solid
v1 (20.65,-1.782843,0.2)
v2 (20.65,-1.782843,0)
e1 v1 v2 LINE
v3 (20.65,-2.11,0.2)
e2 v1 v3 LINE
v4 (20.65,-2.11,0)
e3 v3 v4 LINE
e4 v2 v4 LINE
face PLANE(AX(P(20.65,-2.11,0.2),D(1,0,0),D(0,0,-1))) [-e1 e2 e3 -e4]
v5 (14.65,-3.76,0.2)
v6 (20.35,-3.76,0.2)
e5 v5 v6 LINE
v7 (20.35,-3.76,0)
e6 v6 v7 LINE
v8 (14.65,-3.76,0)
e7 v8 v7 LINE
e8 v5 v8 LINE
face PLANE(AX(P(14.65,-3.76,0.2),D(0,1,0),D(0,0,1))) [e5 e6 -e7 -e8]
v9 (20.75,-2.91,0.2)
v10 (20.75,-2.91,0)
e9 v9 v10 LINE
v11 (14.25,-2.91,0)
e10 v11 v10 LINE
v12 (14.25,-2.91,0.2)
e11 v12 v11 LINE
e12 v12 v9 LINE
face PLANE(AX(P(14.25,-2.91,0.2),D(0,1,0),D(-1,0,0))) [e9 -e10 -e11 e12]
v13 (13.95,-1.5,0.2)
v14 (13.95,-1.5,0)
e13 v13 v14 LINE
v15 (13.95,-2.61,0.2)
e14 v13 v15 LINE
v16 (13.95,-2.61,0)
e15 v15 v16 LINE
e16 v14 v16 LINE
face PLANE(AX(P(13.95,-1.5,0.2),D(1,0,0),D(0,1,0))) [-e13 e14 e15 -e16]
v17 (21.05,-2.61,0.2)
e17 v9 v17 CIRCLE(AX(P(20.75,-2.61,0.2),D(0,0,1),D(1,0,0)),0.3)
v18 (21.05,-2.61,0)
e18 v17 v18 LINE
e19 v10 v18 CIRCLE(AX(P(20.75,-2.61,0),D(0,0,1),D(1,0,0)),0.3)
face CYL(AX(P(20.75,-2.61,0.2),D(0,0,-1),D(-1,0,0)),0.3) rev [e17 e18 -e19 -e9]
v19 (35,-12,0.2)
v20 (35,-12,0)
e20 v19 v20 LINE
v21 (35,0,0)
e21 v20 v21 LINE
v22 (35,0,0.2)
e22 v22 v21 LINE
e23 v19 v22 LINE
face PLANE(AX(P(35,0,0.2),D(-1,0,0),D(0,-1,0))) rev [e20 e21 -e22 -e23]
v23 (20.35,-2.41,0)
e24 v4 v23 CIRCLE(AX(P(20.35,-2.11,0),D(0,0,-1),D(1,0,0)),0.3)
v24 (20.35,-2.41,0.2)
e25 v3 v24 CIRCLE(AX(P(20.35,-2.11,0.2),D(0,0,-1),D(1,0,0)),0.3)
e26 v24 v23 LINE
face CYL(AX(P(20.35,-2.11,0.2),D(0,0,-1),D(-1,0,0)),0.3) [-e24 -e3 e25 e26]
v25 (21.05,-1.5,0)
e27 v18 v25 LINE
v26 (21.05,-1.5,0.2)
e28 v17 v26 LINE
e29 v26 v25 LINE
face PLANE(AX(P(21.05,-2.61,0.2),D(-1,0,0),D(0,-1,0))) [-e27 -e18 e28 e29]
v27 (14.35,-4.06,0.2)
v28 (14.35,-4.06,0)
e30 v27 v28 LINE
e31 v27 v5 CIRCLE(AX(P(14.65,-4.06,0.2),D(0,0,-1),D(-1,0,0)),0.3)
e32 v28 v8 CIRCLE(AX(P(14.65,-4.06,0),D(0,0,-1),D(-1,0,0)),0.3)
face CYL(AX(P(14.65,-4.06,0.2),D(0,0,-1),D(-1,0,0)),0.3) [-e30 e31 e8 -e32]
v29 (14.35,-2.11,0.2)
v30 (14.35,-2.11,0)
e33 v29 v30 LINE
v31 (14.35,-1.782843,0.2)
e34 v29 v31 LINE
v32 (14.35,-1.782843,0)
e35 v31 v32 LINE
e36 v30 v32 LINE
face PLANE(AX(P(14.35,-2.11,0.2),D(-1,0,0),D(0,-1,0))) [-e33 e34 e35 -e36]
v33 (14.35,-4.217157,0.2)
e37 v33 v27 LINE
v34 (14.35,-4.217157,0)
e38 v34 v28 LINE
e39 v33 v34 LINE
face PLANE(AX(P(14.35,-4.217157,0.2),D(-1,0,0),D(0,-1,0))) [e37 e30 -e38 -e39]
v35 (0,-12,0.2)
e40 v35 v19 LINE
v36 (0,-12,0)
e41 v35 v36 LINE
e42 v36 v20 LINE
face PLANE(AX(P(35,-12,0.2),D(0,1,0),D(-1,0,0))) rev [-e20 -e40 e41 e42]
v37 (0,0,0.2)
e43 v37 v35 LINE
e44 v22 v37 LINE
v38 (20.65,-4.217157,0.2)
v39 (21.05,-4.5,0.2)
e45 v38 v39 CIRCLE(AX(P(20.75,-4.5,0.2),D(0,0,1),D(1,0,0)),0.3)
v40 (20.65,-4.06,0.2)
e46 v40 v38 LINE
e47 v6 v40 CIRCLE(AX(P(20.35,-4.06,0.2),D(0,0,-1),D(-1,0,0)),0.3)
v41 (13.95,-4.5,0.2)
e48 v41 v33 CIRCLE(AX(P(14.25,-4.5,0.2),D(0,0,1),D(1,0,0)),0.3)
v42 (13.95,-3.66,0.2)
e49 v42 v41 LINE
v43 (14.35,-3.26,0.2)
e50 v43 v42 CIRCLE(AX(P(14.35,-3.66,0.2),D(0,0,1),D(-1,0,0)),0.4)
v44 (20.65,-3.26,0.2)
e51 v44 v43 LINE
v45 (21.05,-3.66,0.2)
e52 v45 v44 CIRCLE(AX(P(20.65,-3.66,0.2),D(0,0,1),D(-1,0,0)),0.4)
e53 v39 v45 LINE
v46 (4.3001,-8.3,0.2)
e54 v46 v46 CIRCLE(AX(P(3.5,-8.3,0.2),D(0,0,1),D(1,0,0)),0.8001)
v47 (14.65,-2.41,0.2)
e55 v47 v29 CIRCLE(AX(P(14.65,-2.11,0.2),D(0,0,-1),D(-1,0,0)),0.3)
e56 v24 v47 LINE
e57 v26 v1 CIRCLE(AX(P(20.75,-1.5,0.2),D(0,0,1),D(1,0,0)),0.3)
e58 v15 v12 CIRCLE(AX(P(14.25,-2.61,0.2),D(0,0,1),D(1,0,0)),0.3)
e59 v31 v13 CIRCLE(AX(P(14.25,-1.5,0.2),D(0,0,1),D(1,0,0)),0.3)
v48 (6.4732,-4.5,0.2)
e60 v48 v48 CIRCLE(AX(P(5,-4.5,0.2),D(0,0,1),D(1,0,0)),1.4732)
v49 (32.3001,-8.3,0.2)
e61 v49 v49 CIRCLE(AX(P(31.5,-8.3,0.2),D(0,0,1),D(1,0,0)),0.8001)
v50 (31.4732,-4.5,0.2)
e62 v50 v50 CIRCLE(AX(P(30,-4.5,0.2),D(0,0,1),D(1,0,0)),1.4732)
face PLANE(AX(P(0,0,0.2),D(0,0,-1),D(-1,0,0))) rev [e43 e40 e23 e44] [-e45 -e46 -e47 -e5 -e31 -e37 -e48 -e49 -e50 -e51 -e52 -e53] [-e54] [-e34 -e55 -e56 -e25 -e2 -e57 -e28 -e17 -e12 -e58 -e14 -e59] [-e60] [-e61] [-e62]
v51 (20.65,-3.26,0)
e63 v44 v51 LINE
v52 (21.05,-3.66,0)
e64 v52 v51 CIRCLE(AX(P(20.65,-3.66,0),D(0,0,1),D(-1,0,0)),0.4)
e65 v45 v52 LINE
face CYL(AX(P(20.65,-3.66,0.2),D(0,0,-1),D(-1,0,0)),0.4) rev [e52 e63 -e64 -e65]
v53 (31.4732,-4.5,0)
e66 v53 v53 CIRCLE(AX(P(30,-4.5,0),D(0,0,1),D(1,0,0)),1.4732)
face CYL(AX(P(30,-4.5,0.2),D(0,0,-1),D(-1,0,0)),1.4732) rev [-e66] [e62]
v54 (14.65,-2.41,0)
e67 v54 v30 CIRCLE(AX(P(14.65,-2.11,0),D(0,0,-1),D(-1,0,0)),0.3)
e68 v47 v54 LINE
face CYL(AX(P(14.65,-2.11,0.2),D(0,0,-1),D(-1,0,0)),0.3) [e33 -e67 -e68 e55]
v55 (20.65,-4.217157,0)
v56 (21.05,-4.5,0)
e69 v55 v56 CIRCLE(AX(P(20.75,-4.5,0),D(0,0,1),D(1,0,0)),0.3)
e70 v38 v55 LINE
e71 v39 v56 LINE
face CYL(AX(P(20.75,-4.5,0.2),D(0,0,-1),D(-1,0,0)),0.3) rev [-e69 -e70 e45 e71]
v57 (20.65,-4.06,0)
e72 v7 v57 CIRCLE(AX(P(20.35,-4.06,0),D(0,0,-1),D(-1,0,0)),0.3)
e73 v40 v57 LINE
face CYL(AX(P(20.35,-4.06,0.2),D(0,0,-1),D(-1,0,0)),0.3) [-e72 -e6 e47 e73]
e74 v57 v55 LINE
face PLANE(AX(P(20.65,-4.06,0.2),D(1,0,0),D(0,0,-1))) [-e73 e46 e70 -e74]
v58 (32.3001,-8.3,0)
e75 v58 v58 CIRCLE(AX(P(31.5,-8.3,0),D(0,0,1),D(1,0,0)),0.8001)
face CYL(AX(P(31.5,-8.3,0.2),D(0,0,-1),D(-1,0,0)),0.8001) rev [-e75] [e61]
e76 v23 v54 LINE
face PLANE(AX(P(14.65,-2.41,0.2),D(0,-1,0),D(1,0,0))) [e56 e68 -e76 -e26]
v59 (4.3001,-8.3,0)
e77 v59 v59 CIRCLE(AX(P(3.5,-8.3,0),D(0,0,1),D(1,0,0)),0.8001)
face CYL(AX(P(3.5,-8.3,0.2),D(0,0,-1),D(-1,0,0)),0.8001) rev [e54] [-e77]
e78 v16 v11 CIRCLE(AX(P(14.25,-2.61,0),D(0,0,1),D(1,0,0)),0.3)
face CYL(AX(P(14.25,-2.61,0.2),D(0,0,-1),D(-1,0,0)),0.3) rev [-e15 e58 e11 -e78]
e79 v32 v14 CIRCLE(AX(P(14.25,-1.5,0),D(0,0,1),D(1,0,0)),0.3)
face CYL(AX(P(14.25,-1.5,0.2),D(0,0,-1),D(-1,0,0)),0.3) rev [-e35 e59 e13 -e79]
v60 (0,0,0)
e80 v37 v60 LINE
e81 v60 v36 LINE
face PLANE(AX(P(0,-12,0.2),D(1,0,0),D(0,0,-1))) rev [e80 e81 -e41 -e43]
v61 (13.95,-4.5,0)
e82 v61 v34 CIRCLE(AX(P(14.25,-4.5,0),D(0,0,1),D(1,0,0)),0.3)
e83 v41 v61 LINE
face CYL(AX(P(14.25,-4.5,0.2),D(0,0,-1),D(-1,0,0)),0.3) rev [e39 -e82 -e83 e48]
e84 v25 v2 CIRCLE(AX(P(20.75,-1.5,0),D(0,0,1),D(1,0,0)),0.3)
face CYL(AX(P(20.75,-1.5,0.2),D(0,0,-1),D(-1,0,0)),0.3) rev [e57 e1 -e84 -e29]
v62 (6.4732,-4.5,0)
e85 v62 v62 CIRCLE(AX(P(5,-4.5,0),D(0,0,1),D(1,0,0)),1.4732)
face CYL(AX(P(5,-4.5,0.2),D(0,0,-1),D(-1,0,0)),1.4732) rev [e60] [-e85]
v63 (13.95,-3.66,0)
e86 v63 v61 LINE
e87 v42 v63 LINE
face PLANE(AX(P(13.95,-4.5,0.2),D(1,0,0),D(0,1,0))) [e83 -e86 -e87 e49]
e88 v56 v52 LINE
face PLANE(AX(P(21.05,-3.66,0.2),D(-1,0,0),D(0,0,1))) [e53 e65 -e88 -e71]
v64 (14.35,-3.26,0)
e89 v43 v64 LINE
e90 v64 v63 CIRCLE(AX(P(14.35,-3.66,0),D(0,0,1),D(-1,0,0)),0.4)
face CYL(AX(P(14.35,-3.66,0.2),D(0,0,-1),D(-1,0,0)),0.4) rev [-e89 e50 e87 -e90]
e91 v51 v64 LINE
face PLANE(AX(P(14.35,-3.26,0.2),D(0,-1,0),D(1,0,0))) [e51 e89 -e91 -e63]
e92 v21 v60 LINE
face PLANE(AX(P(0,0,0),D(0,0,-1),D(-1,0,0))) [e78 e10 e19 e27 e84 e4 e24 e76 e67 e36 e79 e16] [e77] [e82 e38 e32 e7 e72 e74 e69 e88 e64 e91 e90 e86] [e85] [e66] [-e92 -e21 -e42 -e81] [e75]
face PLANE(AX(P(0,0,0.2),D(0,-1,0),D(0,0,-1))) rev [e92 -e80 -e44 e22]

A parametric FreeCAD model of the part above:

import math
import FreeCAD as App
import Part
import Sketcher
from FreeCAD import Vector

doc = App.newDocument("Part")
body = doc.addObject("PartDesign::Body", "Body")

# Sketch on XY plane
sketch1 = body.newObject("Sketcher::SketchObject", "Sketch")
sketch1.AttachmentSupport = (doc.getObject("XY_Plane"), [""])
sketch1.MapMode = "FlatFace"
sketch1.addGeometry([
    Part.LineSegment(Vector(0, 0, 0), Vector(0, -12, 0)),  # 0
    Part.LineSegment(Vector(0, -12, 0), Vector(35, -12, 0)),  # 1
    Part.LineSegment(Vector(35, -12, 0), Vector(35, 0, 0)),  # 2
    Part.LineSegment(Vector(35, 0, 0), Vector(0, 0, 0)),  # 3
    Part.Circle(Vector(3.5, -8.3, 0), Vector(0, 0, 1), 0.8),  # 4
    Part.Circle(Vector(31.5, -8.3, 0), Vector(0, 0, 1), 0.8),  # 5
    Part.Circle(Vector(5, -4.5, 0), Vector(0, 0, 1), 1.47),  # 6
    Part.ArcOfCircle(Part.Circle(Vector(14.25, -4.5, 0), Vector(0, 0, 1), 0.3), math.radians(180), math.radians(431)),  # 7
    Part.LineSegment(Vector(13.95, -4.5, 0), Vector(13.95, -3.66, 0)),  # 8
    Part.ArcOfCircle(Part.Circle(Vector(14.35, -3.66, 0), Vector(0, 0, 1), 0.4), math.radians(90), math.radians(180)),  # 9
    Part.LineSegment(Vector(14.35, -3.26, 0), Vector(20.65, -3.26, 0)),  # 10
    Part.ArcOfCircle(Part.Circle(Vector(20.65, -3.66, 0), Vector(0, 0, 1), 0.4), math.radians(0), math.radians(90)),  # 11
    Part.LineSegment(Vector(21.05, -3.66, 0), Vector(21.05, -4.5, 0)),  # 12
    Part.ArcOfCircle(Part.Circle(Vector(20.75, -4.5, 0), Vector(0, 0, 1), 0.3), math.radians(109), math.radians(360)),  # 13
    Part.LineSegment(Vector(20.65, -4.22, 0), Vector(20.65, -4.06, 0)),  # 14
    Part.ArcOfCircle(Part.Circle(Vector(20.35, -4.06, 0), Vector(0, 0, 1), 0.3), math.radians(0), math.radians(90)),  # 15
    Part.LineSegment(Vector(20.35, -3.76, 0), Vector(14.65, -3.76, 0)),  # 16
    Part.ArcOfCircle(Part.Circle(Vector(14.65, -4.06, 0), Vector(0, 0, 1), 0.3), math.radians(90), math.radians(180)),  # 17
    Part.LineSegment(Vector(14.35, -4.06, 0), Vector(14.35, -4.22, 0)),  # 18
    Part.Circle(Vector(30, -4.5, 0), Vector(0, 0, 1), 1.47),  # 19
    Part.LineSegment(Vector(14.35, -1.78, 0), Vector(14.35, -2.11, 0)),  # 20
    Part.ArcOfCircle(Part.Circle(Vector(14.65, -2.11, 0), Vector(0, 0, 1), 0.3), math.radians(-180), math.radians(-90)),  # 21
    Part.LineSegment(Vector(14.65, -2.41, 0), Vector(20.35, -2.41, 0)),  # 22
    Part.ArcOfCircle(Part.Circle(Vector(20.35, -2.11, 0), Vector(0, 0, 1), 0.3), math.radians(-90), math.radians(0)),  # 23
    Part.LineSegment(Vector(20.65, -2.11, 0), Vector(20.65, -1.78, 0)),  # 24
    Part.ArcOfCircle(Part.Circle(Vector(20.75, -1.5, 0), Vector(0, 0, 1), 0.3), math.radians(0), math.radians(251)),  # 25
    Part.LineSegment(Vector(21.05, -1.5, 0), Vector(21.05, -2.61, 0)),  # 26
    Part.ArcOfCircle(Part.Circle(Vector(20.75, -2.61, 0), Vector(0, 0, 1), 0.3), math.radians(-90), math.radians(0)),  # 27
    Part.LineSegment(Vector(20.75, -2.91, 0), Vector(14.25, -2.91, 0)),  # 28
    Part.ArcOfCircle(Part.Circle(Vector(14.25, -2.61, 0), Vector(0, 0, 1), 0.3), math.radians(-180), math.radians(-90)),  # 29
    Part.LineSegment(Vector(13.95, -2.61, 0), Vector(13.95, -1.5, 0)),  # 30
    Part.ArcOfCircle(Part.Circle(Vector(14.25, -1.5, 0), Vector(0, 0, 1), 0.3), math.radians(-71), math.radians(180)),  # 31
], False)
sketch1.addConstraint([
    Sketcher.Constraint("Coincident", 0, 2, 1, 1),
    Sketcher.Constraint("Coincident", 1, 2, 2, 1),
    Sketcher.Constraint("Coincident", 2, 2, 3, 1),
    Sketcher.Constraint("Coincident", 3, 2, 0, 1),
    Sketcher.Constraint("Tangent", 7, 1, 8, 1),
    Sketcher.Constraint("Tangent", 8, 2, 9, 2),
    Sketcher.Constraint("Tangent", 9, 1, 10, 1),
    Sketcher.Constraint("Tangent", 10, 2, 11, 2),
    Sketcher.Constraint("Tangent", 11, 1, 12, 1),
    Sketcher.Constraint("Tangent", 12, 2, 13, 2),
    Sketcher.Constraint("Coincident", 13, 1, 14, 1),
    Sketcher.Constraint("Tangent", 14, 2, 15, 1),
    Sketcher.Constraint("Tangent", 15, 2, 16, 1),
    Sketcher.Constraint("Tangent", 16, 2, 17, 1),
    Sketcher.Constraint("Tangent", 17, 2, 18, 1),
    Sketcher.Constraint("Coincident", 18, 2, 7, 2),
    Sketcher.Constraint("Tangent", 20, 2, 21, 1),
    Sketcher.Constraint("Tangent", 21, 2, 22, 1),
    Sketcher.Constraint("Tangent", 22, 2, 23, 1),
    Sketcher.Constraint("Tangent", 23, 2, 24, 1),
    Sketcher.Constraint("Coincident", 24, 2, 25, 2),
    Sketcher.Constraint("Tangent", 25, 1, 26, 1),
    Sketcher.Constraint("Tangent", 26, 2, 27, 2),
    Sketcher.Constraint("Tangent", 27, 1, 28, 1),
    Sketcher.Constraint("Tangent", 28, 2, 29, 2),
    Sketcher.Constraint("Tangent", 29, 1, 30, 1),
    Sketcher.Constraint("Tangent", 30, 2, 31, 2),
    Sketcher.Constraint("Coincident", 31, 1, 20, 1),
    Sketcher.Constraint("Vertical", 0),
    Sketcher.Constraint("Horizontal", 1),
    Sketcher.Constraint("Vertical", 2),
    Sketcher.Constraint("Horizontal", 3),
    Sketcher.Constraint("Vertical", 8),
    Sketcher.Constraint("Horizontal", 10),
    Sketcher.Constraint("Vertical", 12),
    Sketcher.Constraint("Vertical", 14),
    Sketcher.Constraint("Horizontal", 16),
    Sketcher.Constraint("Vertical", 18),
    Sketcher.Constraint("Vertical", 20),
    Sketcher.Constraint("Horizontal", 22),
    Sketcher.Constraint("Vertical", 24),
    Sketcher.Constraint("Vertical", 26),
    Sketcher.Constraint("Horizontal", 28),
    Sketcher.Constraint("Vertical", 30),
    Sketcher.Constraint("Coincident", 3, 2, -1, 1),
    Sketcher.Constraint("Equal", 4, 5),
    Sketcher.Constraint("Equal", 9, 11),
    Sketcher.Constraint("Equal", 7, 13),
    Sketcher.Constraint("Equal", 13, 15),
    Sketcher.Constraint("Equal", 15, 17),
    Sketcher.Constraint("Equal", 6, 19),
    Sketcher.Constraint("Equal", 17, 21),
    Sketcher.Constraint("Equal", 21, 23),
    Sketcher.Constraint("Equal", 23, 25),
    Sketcher.Constraint("Equal", 25, 27),
    Sketcher.Constraint("Equal", 27, 29),
    Sketcher.Constraint("Equal", 29, 31),
    Sketcher.Constraint("Horizontal", 4, 3, 5, 3),
    Sketcher.Constraint("Horizontal", 6, 3, 7, 3),
    Sketcher.Constraint("Horizontal", 7, 3, 13, 3),
    Sketcher.Constraint("Horizontal", 13, 3, 19, 3),
    Sketcher.Constraint("Horizontal", 25, 3, 31, 3),
    Sketcher.Constraint("Horizontal", 13, 1, 18, 2),
    Sketcher.Constraint("Horizontal", 24, 2, 31, 1),
    Sketcher.Constraint("Vertical", 17, 3, 21, 3),
    Sketcher.Constraint("Vertical", 15, 3, 23, 3),
    Sketcher.Constraint("Vertical", 13, 3, 25, 3),
    Sketcher.Constraint("Vertical", 10, 2, 13, 1),
    Sketcher.Constraint("Radius", 7, 0.3),
    Sketcher.Constraint("Radius", 9, 0.4),
    Sketcher.Constraint("DistanceX", 1, 1, 1, 2, 35.0),
    Sketcher.Constraint("DistanceY", 0, 2, 0, 1, 12.0),
    Sketcher.Constraint("DistanceX", 10, 1, 10, 2, 6.3),
    Sketcher.Constraint("DistanceX", -1, 1, 6, 3, 5.0),
    Sketcher.Constraint("DistanceX", -1, 1, 19, 3, 30.0),
    Sketcher.Constraint("DistanceX", 4, 3, 5, 3, 28.0),
    Sketcher.Constraint("DistanceY", 13, 3, 25, 3, 3.0),
    Sketcher.Constraint("Diameter", 4, 1.6002),
    Sketcher.Constraint("Diameter", 6, 2.9464),
    Sketcher.Constraint("DistanceY", 8, 1, 8, 2, 0.84),
    Sketcher.Constraint("DistanceY", 26, 2, 26, 1, 1.11),
    Sketcher.Constraint("DistanceX", -1, 1, 4, 3, 3.5),
    Sketcher.Constraint("DistanceY", 4, 3, -1, 1, 8.3),
    Sketcher.Constraint("DistanceY", 6, 3, -1, 1, 4.5),
    Sketcher.Constraint("DistanceY", 15, 3, 11, 3, 0.4),
    Sketcher.Constraint("DistanceY", 27, 3, 23, 3, 0.5),
    Sketcher.Constraint("DistanceX", -1, 1, 7, 3, 14.25),
])
pad1 = body.newObject("PartDesign::Pad", "Pad")
pad1.Profile = sketch1
pad1.Length = 0.2

doc.recompute()
